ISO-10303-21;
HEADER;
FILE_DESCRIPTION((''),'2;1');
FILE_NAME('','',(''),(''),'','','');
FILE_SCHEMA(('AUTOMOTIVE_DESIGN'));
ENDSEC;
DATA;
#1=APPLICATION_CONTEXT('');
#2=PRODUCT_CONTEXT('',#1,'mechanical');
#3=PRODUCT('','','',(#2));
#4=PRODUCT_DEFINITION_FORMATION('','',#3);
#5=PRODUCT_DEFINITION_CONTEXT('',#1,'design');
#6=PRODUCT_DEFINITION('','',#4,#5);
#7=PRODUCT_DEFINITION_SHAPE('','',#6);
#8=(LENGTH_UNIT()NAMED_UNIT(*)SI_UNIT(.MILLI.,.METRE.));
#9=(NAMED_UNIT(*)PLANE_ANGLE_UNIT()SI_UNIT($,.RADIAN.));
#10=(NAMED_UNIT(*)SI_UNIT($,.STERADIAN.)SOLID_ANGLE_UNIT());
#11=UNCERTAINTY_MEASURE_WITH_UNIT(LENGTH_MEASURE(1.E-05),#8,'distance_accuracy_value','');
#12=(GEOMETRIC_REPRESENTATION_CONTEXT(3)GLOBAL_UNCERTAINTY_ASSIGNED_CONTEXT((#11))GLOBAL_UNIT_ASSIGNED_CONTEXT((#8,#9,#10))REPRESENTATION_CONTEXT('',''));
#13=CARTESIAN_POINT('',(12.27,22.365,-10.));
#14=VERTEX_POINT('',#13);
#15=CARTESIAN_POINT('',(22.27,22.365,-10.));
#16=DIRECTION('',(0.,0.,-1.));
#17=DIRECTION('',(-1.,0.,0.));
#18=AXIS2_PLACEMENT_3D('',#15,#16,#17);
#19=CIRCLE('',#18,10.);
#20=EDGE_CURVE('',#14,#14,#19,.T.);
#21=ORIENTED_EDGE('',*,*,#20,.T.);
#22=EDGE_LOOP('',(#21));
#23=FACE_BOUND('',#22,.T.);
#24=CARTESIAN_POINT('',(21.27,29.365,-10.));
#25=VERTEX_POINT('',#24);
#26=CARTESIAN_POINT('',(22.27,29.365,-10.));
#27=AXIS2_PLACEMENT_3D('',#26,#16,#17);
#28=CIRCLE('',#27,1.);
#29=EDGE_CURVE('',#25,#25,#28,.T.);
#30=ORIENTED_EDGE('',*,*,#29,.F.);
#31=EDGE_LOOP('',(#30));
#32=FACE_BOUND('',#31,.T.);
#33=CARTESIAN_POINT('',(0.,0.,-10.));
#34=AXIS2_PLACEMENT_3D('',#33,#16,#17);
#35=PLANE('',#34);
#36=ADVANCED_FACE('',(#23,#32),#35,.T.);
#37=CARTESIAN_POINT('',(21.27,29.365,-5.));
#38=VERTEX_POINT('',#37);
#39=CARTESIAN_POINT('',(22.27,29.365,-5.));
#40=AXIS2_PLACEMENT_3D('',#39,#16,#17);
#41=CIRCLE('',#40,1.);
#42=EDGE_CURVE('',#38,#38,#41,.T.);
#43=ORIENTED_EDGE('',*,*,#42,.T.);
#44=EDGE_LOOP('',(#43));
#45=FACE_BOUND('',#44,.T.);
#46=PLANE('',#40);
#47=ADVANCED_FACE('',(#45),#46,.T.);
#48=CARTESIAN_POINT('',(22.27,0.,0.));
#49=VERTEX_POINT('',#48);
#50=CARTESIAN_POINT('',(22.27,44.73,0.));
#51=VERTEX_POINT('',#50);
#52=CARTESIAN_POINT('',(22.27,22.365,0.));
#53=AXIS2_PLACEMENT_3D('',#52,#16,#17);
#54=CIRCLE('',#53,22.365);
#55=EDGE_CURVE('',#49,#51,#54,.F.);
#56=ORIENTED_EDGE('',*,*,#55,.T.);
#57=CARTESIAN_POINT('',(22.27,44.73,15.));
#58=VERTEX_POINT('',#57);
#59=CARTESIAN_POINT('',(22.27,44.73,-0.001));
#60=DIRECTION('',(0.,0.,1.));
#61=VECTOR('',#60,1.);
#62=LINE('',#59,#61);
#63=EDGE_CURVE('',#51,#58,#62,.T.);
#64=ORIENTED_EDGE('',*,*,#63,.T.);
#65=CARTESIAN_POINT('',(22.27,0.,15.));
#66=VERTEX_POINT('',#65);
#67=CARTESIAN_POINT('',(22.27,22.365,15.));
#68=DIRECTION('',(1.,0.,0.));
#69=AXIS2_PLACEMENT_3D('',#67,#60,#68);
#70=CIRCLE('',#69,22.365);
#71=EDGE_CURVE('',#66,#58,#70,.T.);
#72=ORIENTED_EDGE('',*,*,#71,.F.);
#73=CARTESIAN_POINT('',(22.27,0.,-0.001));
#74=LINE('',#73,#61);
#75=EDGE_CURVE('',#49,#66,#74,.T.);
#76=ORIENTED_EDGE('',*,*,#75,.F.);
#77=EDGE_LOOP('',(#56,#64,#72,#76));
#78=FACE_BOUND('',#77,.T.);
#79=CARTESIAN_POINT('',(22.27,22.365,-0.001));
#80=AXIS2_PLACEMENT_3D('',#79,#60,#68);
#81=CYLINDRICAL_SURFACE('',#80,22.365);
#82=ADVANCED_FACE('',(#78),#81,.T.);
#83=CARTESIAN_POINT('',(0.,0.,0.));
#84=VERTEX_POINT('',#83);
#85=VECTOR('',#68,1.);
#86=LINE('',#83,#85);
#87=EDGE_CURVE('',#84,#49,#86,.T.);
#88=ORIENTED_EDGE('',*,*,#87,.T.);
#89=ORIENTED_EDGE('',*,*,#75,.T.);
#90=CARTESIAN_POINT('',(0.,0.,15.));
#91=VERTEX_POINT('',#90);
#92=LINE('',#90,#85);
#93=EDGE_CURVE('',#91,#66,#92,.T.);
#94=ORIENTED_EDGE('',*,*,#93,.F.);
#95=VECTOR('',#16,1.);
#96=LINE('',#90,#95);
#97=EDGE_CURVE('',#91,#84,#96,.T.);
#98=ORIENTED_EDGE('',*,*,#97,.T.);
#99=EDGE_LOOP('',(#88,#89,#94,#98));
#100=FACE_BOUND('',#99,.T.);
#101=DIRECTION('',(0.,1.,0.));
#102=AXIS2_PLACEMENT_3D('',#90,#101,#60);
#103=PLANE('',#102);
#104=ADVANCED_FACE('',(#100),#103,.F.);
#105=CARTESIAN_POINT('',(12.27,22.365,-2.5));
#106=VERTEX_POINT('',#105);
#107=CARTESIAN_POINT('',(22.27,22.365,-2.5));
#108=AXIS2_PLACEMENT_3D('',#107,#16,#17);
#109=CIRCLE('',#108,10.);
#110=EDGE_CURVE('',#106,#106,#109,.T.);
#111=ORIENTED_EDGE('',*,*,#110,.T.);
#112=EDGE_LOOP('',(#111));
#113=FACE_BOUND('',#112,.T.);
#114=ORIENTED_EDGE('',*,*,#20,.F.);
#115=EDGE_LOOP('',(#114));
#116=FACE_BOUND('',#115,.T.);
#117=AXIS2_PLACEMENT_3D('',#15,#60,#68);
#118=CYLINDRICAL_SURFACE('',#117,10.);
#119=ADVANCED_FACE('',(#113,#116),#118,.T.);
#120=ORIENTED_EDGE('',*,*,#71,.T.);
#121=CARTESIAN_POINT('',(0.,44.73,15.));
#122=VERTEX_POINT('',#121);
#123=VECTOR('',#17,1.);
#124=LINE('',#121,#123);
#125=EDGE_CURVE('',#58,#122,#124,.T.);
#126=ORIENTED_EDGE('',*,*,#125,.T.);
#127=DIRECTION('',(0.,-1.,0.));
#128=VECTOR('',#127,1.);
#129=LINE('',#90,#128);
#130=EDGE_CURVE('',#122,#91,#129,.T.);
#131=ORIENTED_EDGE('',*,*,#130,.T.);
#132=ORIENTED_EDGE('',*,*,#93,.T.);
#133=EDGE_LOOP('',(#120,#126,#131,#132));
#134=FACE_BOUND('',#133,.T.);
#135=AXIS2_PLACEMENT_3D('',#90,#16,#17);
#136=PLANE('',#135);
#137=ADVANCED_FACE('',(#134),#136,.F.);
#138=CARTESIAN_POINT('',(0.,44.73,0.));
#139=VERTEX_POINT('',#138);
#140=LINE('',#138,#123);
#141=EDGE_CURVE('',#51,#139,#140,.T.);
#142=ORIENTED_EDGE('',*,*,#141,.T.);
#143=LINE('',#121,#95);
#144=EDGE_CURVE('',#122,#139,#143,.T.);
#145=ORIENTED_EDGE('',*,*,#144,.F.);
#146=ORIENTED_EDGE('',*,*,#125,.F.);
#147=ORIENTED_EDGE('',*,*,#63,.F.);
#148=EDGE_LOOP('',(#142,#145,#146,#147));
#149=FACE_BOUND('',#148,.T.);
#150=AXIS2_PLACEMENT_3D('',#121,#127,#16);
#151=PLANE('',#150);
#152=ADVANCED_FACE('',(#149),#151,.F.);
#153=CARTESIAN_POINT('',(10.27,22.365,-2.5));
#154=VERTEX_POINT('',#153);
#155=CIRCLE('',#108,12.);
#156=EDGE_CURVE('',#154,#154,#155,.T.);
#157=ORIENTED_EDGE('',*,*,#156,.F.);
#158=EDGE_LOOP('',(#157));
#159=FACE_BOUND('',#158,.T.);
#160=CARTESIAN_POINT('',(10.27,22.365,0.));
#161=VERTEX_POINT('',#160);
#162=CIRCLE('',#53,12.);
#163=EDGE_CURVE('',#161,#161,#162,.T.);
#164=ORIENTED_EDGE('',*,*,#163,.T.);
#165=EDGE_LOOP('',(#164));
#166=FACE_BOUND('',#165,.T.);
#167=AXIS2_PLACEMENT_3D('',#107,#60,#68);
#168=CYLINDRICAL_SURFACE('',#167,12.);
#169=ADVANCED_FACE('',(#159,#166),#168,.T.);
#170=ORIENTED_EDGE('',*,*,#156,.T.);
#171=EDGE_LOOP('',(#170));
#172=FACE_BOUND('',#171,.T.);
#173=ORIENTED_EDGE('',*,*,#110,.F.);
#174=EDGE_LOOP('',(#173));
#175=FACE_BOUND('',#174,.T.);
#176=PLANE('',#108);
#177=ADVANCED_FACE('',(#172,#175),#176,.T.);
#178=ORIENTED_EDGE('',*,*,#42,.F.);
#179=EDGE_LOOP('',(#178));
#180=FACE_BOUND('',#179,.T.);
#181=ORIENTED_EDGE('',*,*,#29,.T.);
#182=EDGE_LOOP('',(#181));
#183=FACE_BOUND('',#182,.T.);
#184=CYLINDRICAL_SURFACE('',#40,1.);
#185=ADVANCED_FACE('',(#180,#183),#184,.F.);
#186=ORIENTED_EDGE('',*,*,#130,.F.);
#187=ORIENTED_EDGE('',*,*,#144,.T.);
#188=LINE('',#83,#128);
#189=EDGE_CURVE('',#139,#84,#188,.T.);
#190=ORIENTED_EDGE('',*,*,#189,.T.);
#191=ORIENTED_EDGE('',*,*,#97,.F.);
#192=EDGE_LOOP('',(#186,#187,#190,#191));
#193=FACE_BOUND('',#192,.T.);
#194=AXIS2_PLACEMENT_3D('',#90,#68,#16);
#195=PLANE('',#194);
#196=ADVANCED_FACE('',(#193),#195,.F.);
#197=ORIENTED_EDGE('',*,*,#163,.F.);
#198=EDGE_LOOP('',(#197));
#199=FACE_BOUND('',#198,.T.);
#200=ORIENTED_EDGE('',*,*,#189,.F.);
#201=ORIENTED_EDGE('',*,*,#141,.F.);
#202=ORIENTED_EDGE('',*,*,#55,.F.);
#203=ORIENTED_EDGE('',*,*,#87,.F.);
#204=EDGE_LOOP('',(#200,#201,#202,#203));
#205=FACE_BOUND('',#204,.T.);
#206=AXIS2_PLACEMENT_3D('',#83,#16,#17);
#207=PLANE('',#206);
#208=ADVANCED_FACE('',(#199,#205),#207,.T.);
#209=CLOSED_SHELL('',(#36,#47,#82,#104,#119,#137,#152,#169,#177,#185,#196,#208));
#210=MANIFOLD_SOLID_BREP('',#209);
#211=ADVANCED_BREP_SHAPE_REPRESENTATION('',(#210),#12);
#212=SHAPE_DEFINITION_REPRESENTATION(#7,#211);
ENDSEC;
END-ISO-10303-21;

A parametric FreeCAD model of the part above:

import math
import FreeCAD as App
import Part
import Sketcher

V = App.Vector

doc = App.newDocument("Part")
body = doc.addObject("PartDesign::Body", "Body")

# Sketch on XY plane
sketch1 = body.newObject("Sketcher::SketchObject", "Sketch")
sketch1.AttachmentSupport = (doc.getObject("XY_Plane"), [""])
sketch1.MapMode = "FlatFace"
sketch1.addGeometry(Part.LineSegment(V(0, 45, 0), V(0, 0, 0)), False)
sketch1.addGeometry(Part.LineSegment(V(0, 0, 0), V(189, 0, 0)), False)
sketch1.addGeometry(Part.LineSegment(V(189, 0, 0), V(189, 45, 0)), False)
sketch1.addGeometry(Part.LineSegment(V(189, 45, 0), V(0, 45, 0)), False)
sketch1.addConstraint(Sketcher.Constraint("Coincident", 0, 2, 1, 1))
sketch1.addConstraint(Sketcher.Constraint("Coincident", 1, 2, 2, 1))
sketch1.addConstraint(Sketcher.Constraint("Coincident", 2, 2, 3, 1))
sketch1.addConstraint(Sketcher.Constraint("Coincident", 3, 2, 0, 1))
sketch1.addConstraint(Sketcher.Constraint("Vertical", 0))
sketch1.addConstraint(Sketcher.Constraint("Horizontal", 1))
sketch1.addConstraint(Sketcher.Constraint("Vertical", 2))
sketch1.addConstraint(Sketcher.Constraint("Horizontal", 3))
sketch1.addConstraint(Sketcher.Constraint("Coincident", 0, 2, -1, 1))
sketch1.addConstraint(Sketcher.Constraint("DistanceX", 1, 1, 1, 2, 189.06))
sketch1.addConstraint(Sketcher.Constraint("DistanceY", 0, 2, 0, 1, 44.73))
pad1 = body.newObject("PartDesign::Pad", "Pad")
pad1.Profile = sketch1
pad1.Length = 15

# Sketch on XY plane
sketch2 = body.newObject("Sketcher::SketchObject", "Sketch001")
sketch2.AttachmentSupport = (doc.getObject("XY_Plane"), [""])
sketch2.MapMode = "FlatFace"
sketch2.AttachmentOffset = App.Placement(V(0, 0, 15), App.Rotation())
sketch2.addGeometry(Part.LineSegment(V(189, 45, 0), V(22, 45, 0)), False)
sketch2.addGeometry(Part.ArcOfCircle(Part.Circle(V(22, 22, 0), V(0, 0, 1), 22), math.radians(-90), math.radians(90)), False)
sketch2.addGeometry(Part.LineSegment(V(22, 0, 0), V(189, 0, 0)), False)
sketch2.addGeometry(Part.LineSegment(V(189, 0, 0), V(189, 45, 0)), False)
sketch2.addConstraint(Sketcher.Constraint("Tangent", 0, 2, 1, 2))
sketch2.addConstraint(Sketcher.Constraint("Tangent", 1, 1, 2, 1))
sketch2.addConstraint(Sketcher.Constraint("Coincident", 2, 2, 3, 1))
sketch2.addConstraint(Sketcher.Constraint("Coincident", 3, 2, 0, 1))
sketch2.addConstraint(Sketcher.Constraint("Horizontal", 0))
sketch2.addConstraint(Sketcher.Constraint("Horizontal", 2))
sketch2.addConstraint(Sketcher.Constraint("Vertical", 3))
sketch2.addConstraint(Sketcher.Constraint("PointOnObject", 1, 1, -1))
sketch2.addConstraint(Sketcher.Constraint("Radius", 1, 22.365))
sketch2.addConstraint(Sketcher.Constraint("DistanceX", 0, 2, 0, 1, 166.79))
sketch2.addConstraint(Sketcher.Constraint("DistanceX", -1, 1, 1, 3, 22.27))
pocket1 = body.newObject("PartDesign::Pocket", "Pocket")
pocket1.Profile = sketch2
pocket1.Type = "UpToFirst"

# Sketch on XY plane
sketch3 = body.newObject("Sketcher::SketchObject", "Sketch002")
sketch3.AttachmentSupport = (doc.getObject("XY_Plane"), [""])
sketch3.MapMode = "FlatFace"
sketch3.addGeometry(Part.Circle(V(22, 22, 0), V(0, 0, 1), 10), False)
sketch3.addConstraint(Sketcher.Constraint("Diameter", 0, 20.0))
sketch3.addConstraint(Sketcher.Constraint("DistanceX", -1, 1, 0, 3, 22.27))
sketch3.addConstraint(Sketcher.Constraint("DistanceY", -1, 1, 0, 3, 22.365))
pad2 = body.newObject("PartDesign::Pad", "Pad001")
pad2.Profile = sketch3
pad2.Length = 10
pad2.Reversed = True

# Sketch on XY plane
sketch4 = body.newObject("Sketcher::SketchObject", "Sketch003")
sketch4.AttachmentSupport = (doc.getObject("XY_Plane"), [""])
sketch4.MapMode = "FlatFace"
sketch4.AttachmentOffset = App.Placement(V(0, 0, -10), App.Rotation())
sketch4.addGeometry(Part.Circle(V(22.3, 29.4, 0), V(0, 0, 1), 1), False)
sketch4.addGeometry(Part.Circle(V(15.3, -108.6, 0), V(0, 0, 1), 1), False)
sketch4.addGeometry(Part.Circle(V(153.2, -115.6, 0), V(0, 0, 1), 1), False)
sketch4.addGeometry(Part.Circle(V(160.2, 22.4, 0), V(0, 0, 1), 1), False)
sketch4.addConstraint(Sketcher.Constraint("Equal", 0, 1))
sketch4.addConstraint(Sketcher.Constraint("Equal", 1, 2))
sketch4.addConstraint(Sketcher.Constraint("Equal", 2, 3))
sketch4.addConstraint(Sketcher.Constraint("Diameter", 0, 2.0))
sketch4.addConstraint(Sketcher.Constraint("DistanceX", 1, 3, 0, 3, 7.0))
sketch4.addConstraint(Sketcher.Constraint("DistanceY", 2, 3, 1, 3, 7.0))
sketch4.addConstraint(Sketcher.Constraint("DistanceY", 3, 3, 0, 3, 7.0))
sketch4.addConstraint(Sketcher.Constraint("DistanceX", 2, 3, 3, 3, 7.0))
sketch4.addConstraint(Sketcher.Constraint("DistanceX", -1, 1, 0, 3, 22.27))
sketch4.addConstraint(Sketcher.Constraint("DistanceY", -1, 1, 0, 3, 29.365))
sketch4.addConstraint(Sketcher.Constraint("DistanceY", 1, 3, -1, 1, 108.576623))
sketch4.addConstraint(Sketcher.Constraint("DistanceX", -1, 1, 2, 3, 153.211623))
pocket2 = body.newObject("PartDesign::Pocket", "Pocket001")
pocket2.Profile = sketch4
pocket2.Length = 5
pocket2.Reversed = True

# Sketch on XY plane
sketch5 = body.newObject("Sketcher::SketchObject", "Sketch004")
sketch5.AttachmentSupport = (doc.getObject("XY_Plane"), [""])
sketch5.MapMode = "FlatFace"
sketch5.addGeometry(Part.Circle(V(22, 22, 0), V(0, 0, 1), 12), False)
sketch5.addGeometry(Part.Circle(V(22, 22, 0), V(0, 0, 1), 10), False)
sketch5.addConstraint(Sketcher.Constraint("Coincident", 1, 3, 0, 3))
sketch5.addConstraint(Sketcher.Constraint("Diameter", 0, 24.0))
sketch5.addConstraint(Sketcher.Constraint("Diameter", 1, 20.0))
sketch5.addConstraint(Sketcher.Constraint("DistanceX", -1, 1, 0, 3, 22.27))
sketch5.addConstraint(Sketcher.Constraint("DistanceY", -1, 1, 0, 3, 22.365))
pad3 = body.newObject("PartDesign::Pad", "Pad002")
pad3.Profile = sketch5
pad3.Length = 2.5
pad3.Reversed = True

doc.recompute()
